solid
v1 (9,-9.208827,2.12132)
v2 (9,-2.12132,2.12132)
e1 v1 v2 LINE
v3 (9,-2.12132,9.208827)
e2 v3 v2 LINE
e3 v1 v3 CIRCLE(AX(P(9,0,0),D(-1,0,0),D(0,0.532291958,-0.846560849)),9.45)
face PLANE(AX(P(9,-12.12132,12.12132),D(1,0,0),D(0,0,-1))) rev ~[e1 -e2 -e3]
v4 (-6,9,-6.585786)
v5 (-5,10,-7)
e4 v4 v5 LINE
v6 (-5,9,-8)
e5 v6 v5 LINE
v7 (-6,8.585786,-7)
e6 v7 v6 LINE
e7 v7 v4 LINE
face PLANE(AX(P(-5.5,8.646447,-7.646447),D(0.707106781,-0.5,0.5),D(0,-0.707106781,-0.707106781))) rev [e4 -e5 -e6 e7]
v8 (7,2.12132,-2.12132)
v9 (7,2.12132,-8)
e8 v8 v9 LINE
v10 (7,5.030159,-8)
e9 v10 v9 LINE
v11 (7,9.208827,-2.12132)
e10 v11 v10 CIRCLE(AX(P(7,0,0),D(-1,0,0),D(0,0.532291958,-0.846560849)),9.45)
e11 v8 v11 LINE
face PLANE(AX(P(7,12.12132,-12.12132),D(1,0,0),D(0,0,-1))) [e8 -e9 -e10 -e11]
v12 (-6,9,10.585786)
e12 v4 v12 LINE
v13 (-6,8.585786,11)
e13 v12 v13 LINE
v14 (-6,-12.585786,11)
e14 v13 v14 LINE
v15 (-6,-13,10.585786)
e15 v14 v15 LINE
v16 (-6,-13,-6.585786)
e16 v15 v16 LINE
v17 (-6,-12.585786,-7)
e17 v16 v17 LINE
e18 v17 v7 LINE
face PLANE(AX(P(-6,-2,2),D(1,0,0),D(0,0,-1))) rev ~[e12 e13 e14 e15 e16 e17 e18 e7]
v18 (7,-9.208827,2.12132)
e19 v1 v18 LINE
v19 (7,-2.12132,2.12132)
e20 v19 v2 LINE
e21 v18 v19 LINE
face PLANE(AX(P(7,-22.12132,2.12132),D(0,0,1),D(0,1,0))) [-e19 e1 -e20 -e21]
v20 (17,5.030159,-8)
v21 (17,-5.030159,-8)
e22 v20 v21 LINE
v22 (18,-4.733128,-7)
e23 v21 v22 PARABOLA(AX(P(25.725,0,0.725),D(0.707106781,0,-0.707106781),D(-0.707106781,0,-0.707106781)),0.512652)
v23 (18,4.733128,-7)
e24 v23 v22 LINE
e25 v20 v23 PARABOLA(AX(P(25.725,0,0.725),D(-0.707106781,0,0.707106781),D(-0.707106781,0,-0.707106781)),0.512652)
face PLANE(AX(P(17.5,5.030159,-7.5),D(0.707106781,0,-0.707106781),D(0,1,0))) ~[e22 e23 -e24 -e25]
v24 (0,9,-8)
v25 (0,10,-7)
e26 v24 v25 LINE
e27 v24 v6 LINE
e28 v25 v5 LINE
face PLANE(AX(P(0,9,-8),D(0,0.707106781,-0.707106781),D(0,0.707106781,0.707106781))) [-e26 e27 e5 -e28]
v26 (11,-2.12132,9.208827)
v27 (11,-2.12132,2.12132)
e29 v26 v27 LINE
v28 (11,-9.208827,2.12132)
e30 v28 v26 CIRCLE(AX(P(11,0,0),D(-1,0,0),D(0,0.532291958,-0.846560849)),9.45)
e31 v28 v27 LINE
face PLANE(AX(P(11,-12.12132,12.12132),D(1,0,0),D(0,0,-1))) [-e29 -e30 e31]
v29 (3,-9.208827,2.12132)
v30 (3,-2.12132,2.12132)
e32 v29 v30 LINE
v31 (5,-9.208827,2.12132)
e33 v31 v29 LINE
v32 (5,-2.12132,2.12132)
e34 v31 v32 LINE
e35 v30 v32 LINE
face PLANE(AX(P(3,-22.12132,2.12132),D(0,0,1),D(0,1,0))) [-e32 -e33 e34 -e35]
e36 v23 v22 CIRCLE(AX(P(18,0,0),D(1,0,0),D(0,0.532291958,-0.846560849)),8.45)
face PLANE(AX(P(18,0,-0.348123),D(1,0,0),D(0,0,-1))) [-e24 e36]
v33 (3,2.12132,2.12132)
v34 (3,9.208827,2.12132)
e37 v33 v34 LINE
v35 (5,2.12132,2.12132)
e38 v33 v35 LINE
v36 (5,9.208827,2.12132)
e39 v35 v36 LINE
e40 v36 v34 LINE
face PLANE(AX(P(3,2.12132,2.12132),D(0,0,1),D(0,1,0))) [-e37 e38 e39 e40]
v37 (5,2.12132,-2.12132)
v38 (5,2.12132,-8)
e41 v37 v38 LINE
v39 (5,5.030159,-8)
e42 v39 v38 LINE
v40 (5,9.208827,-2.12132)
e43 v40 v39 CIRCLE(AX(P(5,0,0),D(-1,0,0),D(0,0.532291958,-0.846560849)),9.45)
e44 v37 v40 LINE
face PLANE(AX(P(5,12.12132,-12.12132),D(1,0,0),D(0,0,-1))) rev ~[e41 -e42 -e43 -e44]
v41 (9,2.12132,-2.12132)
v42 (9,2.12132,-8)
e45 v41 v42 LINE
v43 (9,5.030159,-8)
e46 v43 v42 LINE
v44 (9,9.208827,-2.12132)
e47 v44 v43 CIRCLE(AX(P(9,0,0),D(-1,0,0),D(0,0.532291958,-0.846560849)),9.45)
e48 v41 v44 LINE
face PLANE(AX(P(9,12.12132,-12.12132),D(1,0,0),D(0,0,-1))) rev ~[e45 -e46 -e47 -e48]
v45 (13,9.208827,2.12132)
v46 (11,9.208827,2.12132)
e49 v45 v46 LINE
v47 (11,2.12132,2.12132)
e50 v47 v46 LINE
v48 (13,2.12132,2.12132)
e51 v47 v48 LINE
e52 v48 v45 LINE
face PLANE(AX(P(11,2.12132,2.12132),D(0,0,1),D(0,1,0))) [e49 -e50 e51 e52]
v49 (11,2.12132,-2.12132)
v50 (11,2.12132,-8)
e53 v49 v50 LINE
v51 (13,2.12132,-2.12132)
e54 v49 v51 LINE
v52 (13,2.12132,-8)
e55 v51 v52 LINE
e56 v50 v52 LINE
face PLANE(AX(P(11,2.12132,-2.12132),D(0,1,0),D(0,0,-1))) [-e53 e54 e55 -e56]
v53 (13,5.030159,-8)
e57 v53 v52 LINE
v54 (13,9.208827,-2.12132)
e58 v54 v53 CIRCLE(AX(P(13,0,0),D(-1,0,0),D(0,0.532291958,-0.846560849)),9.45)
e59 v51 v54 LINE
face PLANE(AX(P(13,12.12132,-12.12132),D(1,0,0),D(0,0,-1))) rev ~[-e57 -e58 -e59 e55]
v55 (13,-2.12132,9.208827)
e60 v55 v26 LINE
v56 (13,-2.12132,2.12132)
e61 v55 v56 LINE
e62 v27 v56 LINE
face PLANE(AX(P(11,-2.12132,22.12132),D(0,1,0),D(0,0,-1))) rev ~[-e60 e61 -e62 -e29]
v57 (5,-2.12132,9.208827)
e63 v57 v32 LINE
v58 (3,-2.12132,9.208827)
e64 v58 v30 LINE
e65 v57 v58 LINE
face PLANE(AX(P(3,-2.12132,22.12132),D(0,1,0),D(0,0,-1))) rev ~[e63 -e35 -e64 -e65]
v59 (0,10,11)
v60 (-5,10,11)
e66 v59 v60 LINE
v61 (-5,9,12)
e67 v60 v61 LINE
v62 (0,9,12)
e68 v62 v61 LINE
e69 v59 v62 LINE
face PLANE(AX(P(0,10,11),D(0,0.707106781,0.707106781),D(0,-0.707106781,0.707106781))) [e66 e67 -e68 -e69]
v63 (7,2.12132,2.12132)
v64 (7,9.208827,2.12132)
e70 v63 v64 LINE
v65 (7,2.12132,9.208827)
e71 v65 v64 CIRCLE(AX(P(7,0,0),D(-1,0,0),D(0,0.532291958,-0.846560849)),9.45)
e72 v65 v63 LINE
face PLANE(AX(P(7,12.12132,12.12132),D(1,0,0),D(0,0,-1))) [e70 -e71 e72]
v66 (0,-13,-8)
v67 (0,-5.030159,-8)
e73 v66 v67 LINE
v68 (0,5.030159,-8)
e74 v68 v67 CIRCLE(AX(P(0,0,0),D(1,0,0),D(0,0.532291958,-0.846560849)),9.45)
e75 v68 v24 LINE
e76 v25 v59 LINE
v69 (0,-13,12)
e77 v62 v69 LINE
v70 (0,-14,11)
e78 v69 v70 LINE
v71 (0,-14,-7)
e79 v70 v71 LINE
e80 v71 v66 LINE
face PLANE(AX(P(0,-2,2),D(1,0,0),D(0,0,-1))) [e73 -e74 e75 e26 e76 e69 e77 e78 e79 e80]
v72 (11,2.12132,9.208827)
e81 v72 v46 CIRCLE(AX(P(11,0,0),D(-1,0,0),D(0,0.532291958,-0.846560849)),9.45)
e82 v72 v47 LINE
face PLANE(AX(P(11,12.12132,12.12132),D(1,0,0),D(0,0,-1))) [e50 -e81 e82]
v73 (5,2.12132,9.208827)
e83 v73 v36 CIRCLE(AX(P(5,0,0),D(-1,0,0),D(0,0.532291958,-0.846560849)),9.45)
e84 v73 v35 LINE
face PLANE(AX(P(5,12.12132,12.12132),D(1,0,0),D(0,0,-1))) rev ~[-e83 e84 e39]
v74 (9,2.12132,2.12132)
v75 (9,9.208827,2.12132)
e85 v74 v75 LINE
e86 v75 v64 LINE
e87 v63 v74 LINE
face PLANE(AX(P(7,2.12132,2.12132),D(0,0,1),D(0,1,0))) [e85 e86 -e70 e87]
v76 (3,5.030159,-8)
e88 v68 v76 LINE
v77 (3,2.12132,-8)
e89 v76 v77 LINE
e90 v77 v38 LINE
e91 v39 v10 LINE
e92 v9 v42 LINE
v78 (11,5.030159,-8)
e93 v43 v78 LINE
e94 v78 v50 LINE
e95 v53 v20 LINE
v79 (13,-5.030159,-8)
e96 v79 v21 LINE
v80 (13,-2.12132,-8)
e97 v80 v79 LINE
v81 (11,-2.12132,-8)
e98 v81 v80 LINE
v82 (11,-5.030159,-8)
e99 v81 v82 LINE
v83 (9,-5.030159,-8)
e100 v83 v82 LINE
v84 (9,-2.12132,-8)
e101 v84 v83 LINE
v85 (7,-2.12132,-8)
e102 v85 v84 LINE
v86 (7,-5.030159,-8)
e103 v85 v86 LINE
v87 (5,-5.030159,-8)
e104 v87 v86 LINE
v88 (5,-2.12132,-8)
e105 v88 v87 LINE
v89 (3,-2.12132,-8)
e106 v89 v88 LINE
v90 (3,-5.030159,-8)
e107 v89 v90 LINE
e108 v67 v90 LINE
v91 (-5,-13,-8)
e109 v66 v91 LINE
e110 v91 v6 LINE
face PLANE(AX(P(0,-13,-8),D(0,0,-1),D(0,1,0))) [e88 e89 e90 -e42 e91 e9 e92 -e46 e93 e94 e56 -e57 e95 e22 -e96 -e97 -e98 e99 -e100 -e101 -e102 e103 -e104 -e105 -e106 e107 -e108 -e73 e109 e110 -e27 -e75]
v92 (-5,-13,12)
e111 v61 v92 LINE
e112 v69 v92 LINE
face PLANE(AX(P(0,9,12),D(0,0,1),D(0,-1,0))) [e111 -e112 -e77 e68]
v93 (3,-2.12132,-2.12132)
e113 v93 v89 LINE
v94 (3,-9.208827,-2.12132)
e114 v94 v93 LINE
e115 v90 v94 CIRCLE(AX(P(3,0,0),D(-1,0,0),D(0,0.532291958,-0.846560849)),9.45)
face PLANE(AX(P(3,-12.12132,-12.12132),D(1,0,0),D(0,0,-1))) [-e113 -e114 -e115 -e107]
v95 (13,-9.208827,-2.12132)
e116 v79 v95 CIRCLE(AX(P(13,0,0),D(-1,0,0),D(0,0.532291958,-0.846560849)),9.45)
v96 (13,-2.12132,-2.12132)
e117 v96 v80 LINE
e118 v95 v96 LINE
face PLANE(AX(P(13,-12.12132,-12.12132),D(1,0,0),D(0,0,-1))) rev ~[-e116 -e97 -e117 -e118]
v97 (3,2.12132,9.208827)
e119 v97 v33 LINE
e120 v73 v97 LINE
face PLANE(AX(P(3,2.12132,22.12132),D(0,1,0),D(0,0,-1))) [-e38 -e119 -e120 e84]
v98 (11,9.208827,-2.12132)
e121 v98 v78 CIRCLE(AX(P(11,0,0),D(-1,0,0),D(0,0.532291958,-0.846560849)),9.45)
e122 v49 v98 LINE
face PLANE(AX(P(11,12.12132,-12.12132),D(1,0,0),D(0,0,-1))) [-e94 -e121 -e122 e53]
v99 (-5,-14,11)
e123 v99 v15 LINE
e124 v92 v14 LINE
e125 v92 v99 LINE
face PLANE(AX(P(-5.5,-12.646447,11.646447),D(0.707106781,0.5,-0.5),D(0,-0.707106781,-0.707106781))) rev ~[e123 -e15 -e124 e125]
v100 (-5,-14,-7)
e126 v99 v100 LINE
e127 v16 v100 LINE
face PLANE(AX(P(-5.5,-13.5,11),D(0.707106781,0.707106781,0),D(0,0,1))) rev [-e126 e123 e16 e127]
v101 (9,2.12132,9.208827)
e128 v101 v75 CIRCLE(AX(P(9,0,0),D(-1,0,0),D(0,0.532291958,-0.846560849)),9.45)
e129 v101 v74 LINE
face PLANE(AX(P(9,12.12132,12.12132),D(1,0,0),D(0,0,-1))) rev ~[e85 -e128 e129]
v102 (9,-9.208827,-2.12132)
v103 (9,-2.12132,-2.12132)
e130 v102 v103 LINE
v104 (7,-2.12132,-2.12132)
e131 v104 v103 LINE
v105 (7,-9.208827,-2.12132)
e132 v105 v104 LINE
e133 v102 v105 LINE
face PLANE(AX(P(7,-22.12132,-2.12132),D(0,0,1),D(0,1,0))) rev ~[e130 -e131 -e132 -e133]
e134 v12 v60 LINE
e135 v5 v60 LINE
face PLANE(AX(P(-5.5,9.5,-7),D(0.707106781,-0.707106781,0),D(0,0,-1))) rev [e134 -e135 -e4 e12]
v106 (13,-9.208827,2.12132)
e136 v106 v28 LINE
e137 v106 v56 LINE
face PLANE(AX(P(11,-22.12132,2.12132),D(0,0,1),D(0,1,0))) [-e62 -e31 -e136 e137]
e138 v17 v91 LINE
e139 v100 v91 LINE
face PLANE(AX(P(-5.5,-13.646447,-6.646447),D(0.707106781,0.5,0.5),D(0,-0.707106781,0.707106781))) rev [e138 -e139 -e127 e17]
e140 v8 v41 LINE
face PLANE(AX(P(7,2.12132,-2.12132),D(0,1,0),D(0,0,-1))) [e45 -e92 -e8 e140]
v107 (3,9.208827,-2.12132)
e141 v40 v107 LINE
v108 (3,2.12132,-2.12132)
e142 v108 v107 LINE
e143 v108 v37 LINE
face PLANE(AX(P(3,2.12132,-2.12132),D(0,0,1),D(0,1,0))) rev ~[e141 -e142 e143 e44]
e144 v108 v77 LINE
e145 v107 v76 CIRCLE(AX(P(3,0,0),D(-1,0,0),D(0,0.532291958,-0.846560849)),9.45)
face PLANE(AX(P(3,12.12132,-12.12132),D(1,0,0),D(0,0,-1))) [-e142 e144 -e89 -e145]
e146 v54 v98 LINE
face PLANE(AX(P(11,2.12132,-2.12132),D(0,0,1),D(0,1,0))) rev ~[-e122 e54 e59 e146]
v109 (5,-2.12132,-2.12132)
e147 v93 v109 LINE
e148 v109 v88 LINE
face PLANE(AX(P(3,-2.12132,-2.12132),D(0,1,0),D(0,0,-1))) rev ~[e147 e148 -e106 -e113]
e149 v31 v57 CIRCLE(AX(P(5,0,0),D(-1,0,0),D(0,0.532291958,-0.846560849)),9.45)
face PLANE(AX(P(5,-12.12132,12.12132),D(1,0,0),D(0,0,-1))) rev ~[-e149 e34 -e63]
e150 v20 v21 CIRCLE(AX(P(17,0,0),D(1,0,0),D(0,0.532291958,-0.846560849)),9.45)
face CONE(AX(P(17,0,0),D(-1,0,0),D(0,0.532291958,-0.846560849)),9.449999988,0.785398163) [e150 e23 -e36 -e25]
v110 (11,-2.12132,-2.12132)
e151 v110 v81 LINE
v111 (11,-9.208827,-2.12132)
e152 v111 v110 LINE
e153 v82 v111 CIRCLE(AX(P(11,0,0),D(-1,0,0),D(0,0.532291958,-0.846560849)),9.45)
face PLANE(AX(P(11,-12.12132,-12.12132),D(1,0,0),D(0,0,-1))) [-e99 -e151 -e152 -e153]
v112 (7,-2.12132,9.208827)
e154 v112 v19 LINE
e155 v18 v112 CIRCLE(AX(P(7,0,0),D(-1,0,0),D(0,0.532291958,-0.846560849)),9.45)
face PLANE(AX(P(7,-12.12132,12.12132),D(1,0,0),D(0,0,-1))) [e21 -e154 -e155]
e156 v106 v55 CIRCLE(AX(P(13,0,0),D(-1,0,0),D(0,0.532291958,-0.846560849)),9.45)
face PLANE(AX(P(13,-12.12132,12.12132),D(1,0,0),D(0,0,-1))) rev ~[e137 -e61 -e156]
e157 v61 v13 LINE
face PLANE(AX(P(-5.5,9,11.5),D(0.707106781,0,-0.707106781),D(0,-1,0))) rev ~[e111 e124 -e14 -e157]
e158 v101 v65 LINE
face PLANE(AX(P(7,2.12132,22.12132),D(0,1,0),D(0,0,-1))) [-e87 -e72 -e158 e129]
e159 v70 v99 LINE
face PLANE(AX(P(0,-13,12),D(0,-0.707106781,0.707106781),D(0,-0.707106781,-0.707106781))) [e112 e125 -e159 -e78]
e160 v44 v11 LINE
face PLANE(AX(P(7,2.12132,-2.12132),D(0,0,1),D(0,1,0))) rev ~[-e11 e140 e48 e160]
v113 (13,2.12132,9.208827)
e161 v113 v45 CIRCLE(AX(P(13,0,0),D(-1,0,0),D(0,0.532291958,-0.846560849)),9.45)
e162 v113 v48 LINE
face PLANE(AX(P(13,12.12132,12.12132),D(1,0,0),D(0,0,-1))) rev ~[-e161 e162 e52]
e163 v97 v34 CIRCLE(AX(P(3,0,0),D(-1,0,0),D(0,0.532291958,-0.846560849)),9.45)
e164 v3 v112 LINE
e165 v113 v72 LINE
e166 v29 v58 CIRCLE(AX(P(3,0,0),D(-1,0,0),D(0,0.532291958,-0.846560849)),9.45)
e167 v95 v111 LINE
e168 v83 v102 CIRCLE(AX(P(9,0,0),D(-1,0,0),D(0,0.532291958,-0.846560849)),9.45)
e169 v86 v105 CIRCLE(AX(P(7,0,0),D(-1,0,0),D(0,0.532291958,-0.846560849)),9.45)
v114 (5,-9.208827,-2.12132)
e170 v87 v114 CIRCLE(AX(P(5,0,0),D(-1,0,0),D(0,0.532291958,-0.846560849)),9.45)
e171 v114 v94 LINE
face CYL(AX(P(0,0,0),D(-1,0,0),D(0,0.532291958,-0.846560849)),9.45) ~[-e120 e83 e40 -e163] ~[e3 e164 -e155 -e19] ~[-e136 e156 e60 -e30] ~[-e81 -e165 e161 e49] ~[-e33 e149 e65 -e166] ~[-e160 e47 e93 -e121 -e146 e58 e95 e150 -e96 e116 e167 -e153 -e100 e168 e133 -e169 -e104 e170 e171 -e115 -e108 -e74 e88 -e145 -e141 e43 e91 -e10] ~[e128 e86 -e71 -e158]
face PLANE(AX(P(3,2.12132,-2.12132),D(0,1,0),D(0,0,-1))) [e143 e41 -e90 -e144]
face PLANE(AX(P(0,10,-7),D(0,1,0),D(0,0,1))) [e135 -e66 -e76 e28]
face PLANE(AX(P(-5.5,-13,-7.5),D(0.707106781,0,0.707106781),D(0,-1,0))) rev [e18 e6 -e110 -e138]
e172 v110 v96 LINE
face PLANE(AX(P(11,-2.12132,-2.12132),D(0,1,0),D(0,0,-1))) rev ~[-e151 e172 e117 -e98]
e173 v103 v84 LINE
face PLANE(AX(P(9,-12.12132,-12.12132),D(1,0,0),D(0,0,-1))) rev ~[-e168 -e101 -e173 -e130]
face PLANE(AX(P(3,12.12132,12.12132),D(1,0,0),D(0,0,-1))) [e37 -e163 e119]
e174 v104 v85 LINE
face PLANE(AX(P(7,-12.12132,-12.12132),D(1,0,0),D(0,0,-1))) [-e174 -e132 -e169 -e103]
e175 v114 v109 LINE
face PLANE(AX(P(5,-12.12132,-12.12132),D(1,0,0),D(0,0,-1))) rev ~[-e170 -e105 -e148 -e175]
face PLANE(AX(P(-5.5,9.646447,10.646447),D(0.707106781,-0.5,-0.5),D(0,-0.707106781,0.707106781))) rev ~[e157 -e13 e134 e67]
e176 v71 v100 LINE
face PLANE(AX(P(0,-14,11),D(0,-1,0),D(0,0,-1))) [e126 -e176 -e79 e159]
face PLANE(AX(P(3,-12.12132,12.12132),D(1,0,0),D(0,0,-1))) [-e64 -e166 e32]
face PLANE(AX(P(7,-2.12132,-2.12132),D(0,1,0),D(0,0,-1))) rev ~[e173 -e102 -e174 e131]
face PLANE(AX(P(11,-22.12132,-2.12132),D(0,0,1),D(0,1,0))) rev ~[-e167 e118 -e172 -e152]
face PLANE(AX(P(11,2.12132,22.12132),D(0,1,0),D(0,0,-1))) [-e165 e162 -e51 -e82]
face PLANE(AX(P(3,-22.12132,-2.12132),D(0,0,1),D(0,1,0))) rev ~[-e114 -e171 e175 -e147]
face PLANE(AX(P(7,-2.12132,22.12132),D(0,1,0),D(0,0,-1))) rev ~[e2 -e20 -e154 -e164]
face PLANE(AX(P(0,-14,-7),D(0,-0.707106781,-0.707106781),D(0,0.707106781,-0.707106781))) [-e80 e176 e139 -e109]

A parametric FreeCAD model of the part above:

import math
import FreeCAD as App
import Part
import Sketcher
from FreeCAD import Vector
Q = App.Units.Quantity


def edges_at(feature, points):
    """Names of the edges that pass closest to the given points."""
    edges = feature.Shape.Edges
    near = lambda p: min(range(len(edges)), key=lambda i: edges[i].distToShape(Part.Vertex(*p))[0])
    return sorted({f"Edge{near(p) + 1}" for p in points})


def add_polygon(sketch, points):
    """Adds a closed chain of lines whose ends are joined by coincident constraints."""
    first, n = sketch.GeometryCount, len(points)
    for a, b in zip(points, points[1:] + points[:1]):
        sketch.addGeometry(Part.LineSegment(App.Vector(*a, 0), App.Vector(*b, 0)), False)
    for i in range(n):
        sketch.addConstraint(Sketcher.Constraint("Coincident", first + i, 2, first + (i + 1) % n, 1))

doc = App.newDocument("Part")
body = doc.addObject("PartDesign::Body", "Body")

# Sketch on XY plane
sketch1 = doc.addObject("Sketcher::SketchObject", "Sketch")
body.addObject(sketch1)
sketch1.AttachmentSupport = (doc.XY_Plane, [""])
sketch1.MapMode = "FlatFace"
sketch1.addGeometry(Part.ArcOfCircle(Part.Circle(Vector(0, 0, 0), Vector(0, 0, 1), 9), math.radians(32), math.radians(328)), False)
sketch1.addGeometry(Part.LineSegment(Vector(8, -5, 0), Vector(8, 5, 0)), False)
sketch1.addConstraint(Sketcher.Constraint("Coincident", 0, 1, 1, 2))
sketch1.addConstraint(Sketcher.Constraint("Coincident", 1, 1, 0, 2))
sketch1.addConstraint(Sketcher.Constraint("Vertical", 1))
sketch1.addConstraint(Sketcher.Constraint("Coincident", 0, 3, -1, 1))
sketch1.addConstraint(Sketcher.Constraint("Radius", 0, Q("9.45 mm")))
sketch1.addConstraint(Sketcher.Constraint("DistanceX", -1, 1, 0, 1, Q("8 mm")))
pad1 = doc.addObject("PartDesign::Pad", "Pad")
body.addObject(pad1)
pad1.Profile = sketch1
pad1.Length = 18
doc.recompute()

chamfer = doc.addObject("PartDesign::Chamfer", "Chamfer")
body.addObject(chamfer)
chamfer.Base = (pad1, edges_at(pad1, [(-9.45, 0, 18), (8, 0, 18)]))
chamfer.Size = 1

# Sketch on XY plane
sketch2 = doc.addObject("Sketcher::SketchObject", "Sketch001")
body.addObject(sketch2)
sketch2.AttachmentSupport = (doc.XY_Plane, [""])
sketch2.MapMode = "FlatFace"
sketch2.AttachmentOffset = App.Placement(Vector(0, 0, 3), App.Rotation())
add_polygon(sketch2, [(2, -2), (2, -22), (22, -22), (22, -2)])  # lines 0-3
add_polygon(sketch2, [(2, 22), (2, 2), (22, 2), (22, 22)])  # lines 4-7
add_polygon(sketch2, [(-22, 22), (-22, 2), (-2, 2), (-2, 22)])  # lines 8-11
add_polygon(sketch2, [(-22, -2), (-22, -22), (-2, -22), (-2, -2)])  # lines 12-15
sketch2.addConstraint(Sketcher.Constraint("Vertical", 0))
sketch2.addConstraint(Sketcher.Constraint("Horizontal", 1))
sketch2.addConstraint(Sketcher.Constraint("Vertical", 2))
sketch2.addConstraint(Sketcher.Constraint("Horizontal", 3))
sketch2.addConstraint(Sketcher.Constraint("Vertical", 4))
sketch2.addConstraint(Sketcher.Constraint("Horizontal", 5))
sketch2.addConstraint(Sketcher.Constraint("Vertical", 6))
sketch2.addConstraint(Sketcher.Constraint("Horizontal", 7))
sketch2.addConstraint(Sketcher.Constraint("Vertical", 8))
sketch2.addConstraint(Sketcher.Constraint("Horizontal", 9))
sketch2.addConstraint(Sketcher.Constraint("Vertical", 10))
sketch2.addConstraint(Sketcher.Constraint("Horizontal", 11))
sketch2.addConstraint(Sketcher.Constraint("Vertical", 12))
sketch2.addConstraint(Sketcher.Constraint("Horizontal", 13))
sketch2.addConstraint(Sketcher.Constraint("Vertical", 14))
sketch2.addConstraint(Sketcher.Constraint("Horizontal", 15))
sketch2.addConstraint(Sketcher.Constraint("Symmetric", 2, 2, 8, 2, -1, 1))
sketch2.addConstraint(Sketcher.Constraint("Symmetric", 0, 2, 10, 2, -1, 1))
sketch2.addConstraint(Sketcher.Constraint("Symmetric", 6, 2, 12, 2, -1, 1))
sketch2.addConstraint(Sketcher.Constraint("Symmetric", 4, 2, 14, 2, -1, 1))
sketch2.addConstraint(Sketcher.Constraint("Symmetric", 5, 2, 8, 2, -2))
sketch2.addConstraint(Sketcher.Constraint("Symmetric", 7, 2, 10, 2, -2))
sketch2.addConstraint(Sketcher.Constraint("Equal", 15, 0))
sketch2.addConstraint(Sketcher.Constraint("DistanceX", 1, 1, 1, 2, Q("20 mm")))
sketch2.addConstraint(Sketcher.Constraint("DistanceX", -1, 1, 0, 2, Q("2.12132 mm")))
sketch2.addConstraint(Sketcher.Constraint("DistanceY", 0, 2, -1, 1, Q("22.12132 mm")))
pocket1 = doc.addObject("PartDesign::Pocket", "Pocket")
body.addObject(pocket1)
pocket1.Profile = sketch2
pocket1.Length = 2
pocket1.Reversed = True
doc.recompute()

linearpattern = doc.addObject("PartDesign::LinearPattern", "LinearPattern")
body.addObject(linearpattern)
linearpattern.Originals = [pocket1]
linearpattern.Direction = (doc.Z_Axis, [""])
linearpattern.Mode = "offset"
linearpattern.Offset = 4
linearpattern.Occurrences = 3
body.Tip = linearpattern

# Sketch on XY plane
sketch3 = doc.addObject("Sketcher::SketchObject", "Sketch002")
body.addObject(sketch3)
sketch3.AttachmentSupport = (doc.XY_Plane, [""])
sketch3.MapMode = "FlatFace"
add_polygon(sketch3, [(-12, 9), (-12, -13), (-11, -14), (7, -14), (8, -13), (8, 9), (7, 10), (-11, 10)])  # lines 0-7
sketch3.addConstraint(Sketcher.Constraint("Vertical", 0))
sketch3.addConstraint(Sketcher.Constraint("Horizontal", 2))
sketch3.addConstraint(Sketcher.Constraint("Vertical", 4))
sketch3.addConstraint(Sketcher.Constraint("Horizontal", 6))
sketch3.addConstraint(Sketcher.Constraint("Perpendicular", 1, 3))
sketch3.addConstraint(Sketcher.Constraint("Perpendicular", 3, 5))
sketch3.addConstraint(Sketcher.Constraint("Perpendicular", 5, 7))
sketch3.addConstraint(Sketcher.Constraint("Horizontal", 0, 2, 3, 2))
sketch3.addConstraint(Sketcher.Constraint("Horizontal", 4, 2, 7, 2))
sketch3.addConstraint(Sketcher.Constraint("Vertical", 2, 2, 5, 2))
sketch3.addConstraint(Sketcher.Constraint("Vertical", 1, 2, 6, 2))
sketch3.addConstraint(Sketcher.Constraint("DistanceX", 2, 1, 2, 2, Q("18 mm")))
sketch3.addConstraint(Sketcher.Constraint("DistanceY", 0, 2, 0, 1, Q("22 mm")))
sketch3.addConstraint(Sketcher.Constraint("DistanceX", 0, 2, -1, 1, Q("12 mm")))
sketch3.addConstraint(Sketcher.Constraint("DistanceY", 0, 2, -1, 1, Q("13 mm")))
sketch3.addConstraint(Sketcher.Constraint("DistanceX", 1, 2, -1, 1, Q("11 mm")))
pad2 = doc.addObject("PartDesign::Pad", "Pad001")
body.addObject(pad2)
pad2.Profile = sketch3
pad2.Length = 6
pad2.Reversed = True
doc.recompute()

chamfer2 = doc.addObject("PartDesign::Chamfer", "Chamfer001")
body.addObject(chamfer2)
chamfer2.Base = (pad2, edges_at(pad2, [
    (-2, 10, -6),
    (-11.5, 9.5, -6),
    (-12, -2, -6),
    (-11.5, -13.5, -6),
    (-2, -14, -6),
    (7.5, -13.5, -6),
    (8, -2, -6),
    (7.5, 9.5, -6),
]))
chamfer2.Size = 1
body2 = doc.addObject("PartDesign::Body", "Body001")
doc.recompute()

body.Placement = App.Placement(Vector(0, 0, 0), App.Rotation(Vector(0, 1, 0), 90))
boolean = doc.addObject("PartDesign::Boolean", "Boolean")
body2.addObject(boolean)
boolean.Type = "Fuse"
boolean.addObjects([body])

doc.recompute()
